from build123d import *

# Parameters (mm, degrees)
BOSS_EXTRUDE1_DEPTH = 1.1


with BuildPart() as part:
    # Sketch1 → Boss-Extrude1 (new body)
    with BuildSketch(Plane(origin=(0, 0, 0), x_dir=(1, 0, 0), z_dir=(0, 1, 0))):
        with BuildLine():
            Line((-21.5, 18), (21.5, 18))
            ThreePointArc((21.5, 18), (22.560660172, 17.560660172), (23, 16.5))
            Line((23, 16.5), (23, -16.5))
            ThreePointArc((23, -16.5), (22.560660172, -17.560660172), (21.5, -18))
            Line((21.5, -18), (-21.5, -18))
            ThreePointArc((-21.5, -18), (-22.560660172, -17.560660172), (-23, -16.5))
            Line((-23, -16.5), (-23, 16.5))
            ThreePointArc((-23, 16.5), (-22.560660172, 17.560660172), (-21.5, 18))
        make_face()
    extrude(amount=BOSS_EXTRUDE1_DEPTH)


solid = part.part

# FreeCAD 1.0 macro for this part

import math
import FreeCAD as App
import Part
import Sketcher
from FreeCAD import Vector

doc = App.newDocument("Part")
body = doc.addObject("PartDesign::Body", "Body")

# Sketch on XZ plane
sketch1 = doc.addObject("Sketcher::SketchObject", "Sketch")
body.addObject(sketch1)
sketch1.AttachmentSupport = (doc.XZ_Plane, [""])
sketch1.MapMode = "FlatFace"
sketch1.addGeometry([
    Part.LineSegment(Vector(21.5, -18, 0), Vector(-21.5, -18, 0)),  # 0
    Part.ArcOfCircle(Part.Circle(Vector(-21.5, -16.5, 0), Vector(0, 0, 1), 1.5), math.radians(180), math.radians(270)),  # 1
    Part.LineSegment(Vector(-23, -16.5, 0), Vector(-23, 16.5, 0)),  # 2
    Part.ArcOfCircle(Part.Circle(Vector(-21.5, 16.5, 0), Vector(0, 0, 1), 1.5), math.radians(90), math.radians(180)),  # 3
    Part.LineSegment(Vector(-21.5, 18, 0), Vector(21.5, 18, 0)),  # 4
    Part.ArcOfCircle(Part.Circle(Vector(21.5, 16.5, 0), Vector(0, 0, 1), 1.5), math.radians(0), math.radians(90)),  # 5
    Part.LineSegment(Vector(23, 16.5, 0), Vector(23, -16.5, 0)),  # 6
    Part.ArcOfCircle(Part.Circle(Vector(21.5, -16.5, 0), Vector(0, 0, 1), 1.5), math.radians(-90), math.radians(0)),  # 7
], False)
sketch1.addConstraint([
    Sketcher.Constraint("Tangent", 0, 2, 1, 2),
    Sketcher.Constraint("Tangent", 1, 1, 2, 1),
    Sketcher.Constraint("Tangent", 2, 2, 3, 2),
    Sketcher.Constraint("Tangent", 3, 1, 4, 1),
    Sketcher.Constraint("Tangent", 4, 2, 5, 2),
    Sketcher.Constraint("Tangent", 5, 1, 6, 1),
    Sketcher.Constraint("Tangent", 6, 2, 7, 2),
    Sketcher.Constraint("Tangent", 7, 1, 0, 1),
    Sketcher.Constraint("Horizontal", 0),
    Sketcher.Constraint("Vertical", 2),
    Sketcher.Constraint("Horizontal", 4),
    Sketcher.Constraint("Vertical", 6),
    Sketcher.Constraint("Equal", 1, 3),
    Sketcher.Constraint("Equal", 3, 5),
    Sketcher.Constraint("Equal", 5, 7),
    Sketcher.Constraint("Symmetric", 1, 3, 5, 3, -1, 1),
    Sketcher.Constraint("Radius", 1, 1.5),
    Sketcher.Constraint("DistanceX", 0, 2, 0, 1, 43.0),
    Sketcher.Constraint("DistanceY", 2, 1, 2, 2, 33.0),
])
pad1 = doc.addObject("PartDesign::Pad", "Pad")
body.addObject(pad1)
pad1.Profile = sketch1
pad1.Length = 1.1
pad1.Reversed = True

doc.recompute()
